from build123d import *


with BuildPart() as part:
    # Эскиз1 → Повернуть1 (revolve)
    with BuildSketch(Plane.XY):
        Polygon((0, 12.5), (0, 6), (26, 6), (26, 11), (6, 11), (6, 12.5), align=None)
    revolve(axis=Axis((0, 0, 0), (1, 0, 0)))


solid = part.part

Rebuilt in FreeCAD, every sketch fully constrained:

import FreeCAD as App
import Part
import Sketcher

doc = App.newDocument("Part")
params = doc.addObject("Spreadsheet::Sheet", "Params")
for row, (alias, value) in enumerate([
    ("sketch1_width", "26 mm"),
    ("sketch1_width2", "20 mm"),
    ("sketch1_height", "5 mm"),
    ("sketch1_height2", "6.5 mm"),
    ("revolution_angle", "360 deg"),
], start=1):
    params.set(f"A{row}", alias)
    params.set(f"B{row}", "=" + value)
    params.setAlias(f"B{row}", alias)

body = doc.addObject("PartDesign::Body", "Body")

# Sketch on XY plane
sketch1 = body.newObject("Sketcher::SketchObject", "Sketch")
sketch1.AttachmentSupport = (doc.getObject("XY_Plane"), [""])
sketch1.MapMode = "FlatFace"
sketch1.addGeometry(Part.LineSegment(App.Vector(0, 12.5, 0), App.Vector(0, 6, 0)), False)
sketch1.addGeometry(Part.LineSegment(App.Vector(0, 6, 0), App.Vector(26, 6, 0)), False)
sketch1.addGeometry(Part.LineSegment(App.Vector(26, 6, 0), App.Vector(26, 11, 0)), False)
sketch1.addGeometry(Part.LineSegment(App.Vector(26, 11, 0), App.Vector(6, 11, 0)), False)
sketch1.addGeometry(Part.LineSegment(App.Vector(6, 11, 0), App.Vector(6, 12.5, 0)), False)
sketch1.addGeometry(Part.LineSegment(App.Vector(6, 12.5, 0), App.Vector(0, 12.5, 0)), False)
sketch1.addConstraint(Sketcher.Constraint("Coincident", 0, 2, 1, 1))
sketch1.addConstraint(Sketcher.Constraint("Coincident", 1, 2, 2, 1))
sketch1.addConstraint(Sketcher.Constraint("Coincident", 2, 2, 3, 1))
sketch1.addConstraint(Sketcher.Constraint("Coincident", 3, 2, 4, 1))
sketch1.addConstraint(Sketcher.Constraint("Coincident", 4, 2, 5, 1))
sketch1.addConstraint(Sketcher.Constraint("Coincident", 5, 2, 0, 1))
sketch1.addConstraint(Sketcher.Constraint("Vertical", 0))
sketch1.addConstraint(Sketcher.Constraint("Horizontal", 1))
sketch1.addConstraint(Sketcher.Constraint("Vertical", 2))
sketch1.addConstraint(Sketcher.Constraint("Horizontal", 3))
sketch1.addConstraint(Sketcher.Constraint("Vertical", 4))
sketch1.addConstraint(Sketcher.Constraint("Horizontal", 5))
sketch1.addConstraint(Sketcher.Constraint("PointOnObject", 0, 2, -2))
sketch1.addConstraint(Sketcher.Constraint("DistanceX", 1, 1, 1, 2, 26.0))
sketch1.addConstraint(Sketcher.Constraint("DistanceX", 3, 2, 3, 1, 20.0))
sketch1.addConstraint(Sketcher.Constraint("DistanceY", 2, 1, 2, 2, 5.0))
sketch1.addConstraint(Sketcher.Constraint("DistanceY", 0, 2, 0, 1, 6.5))
sketch1.addConstraint(Sketcher.Constraint("DistanceY", -1, 1, 0, 2, 6.0))
sketch1.setExpression("Constraints[13]", "Params.sketch1_width")
sketch1.setExpression("Constraints[14]", "Params.sketch1_width2")
sketch1.setExpression("Constraints[15]", "Params.sketch1_height")
sketch1.setExpression("Constraints[16]", "Params.sketch1_height2")
revolution = body.newObject("PartDesign::Revolution", "Revolution")
revolution.Profile = sketch1
revolution.ReferenceAxis = (sketch1, ["H_Axis"])
revolution.setExpression("Angle", "Params.revolution_angle")

doc.recompute()
